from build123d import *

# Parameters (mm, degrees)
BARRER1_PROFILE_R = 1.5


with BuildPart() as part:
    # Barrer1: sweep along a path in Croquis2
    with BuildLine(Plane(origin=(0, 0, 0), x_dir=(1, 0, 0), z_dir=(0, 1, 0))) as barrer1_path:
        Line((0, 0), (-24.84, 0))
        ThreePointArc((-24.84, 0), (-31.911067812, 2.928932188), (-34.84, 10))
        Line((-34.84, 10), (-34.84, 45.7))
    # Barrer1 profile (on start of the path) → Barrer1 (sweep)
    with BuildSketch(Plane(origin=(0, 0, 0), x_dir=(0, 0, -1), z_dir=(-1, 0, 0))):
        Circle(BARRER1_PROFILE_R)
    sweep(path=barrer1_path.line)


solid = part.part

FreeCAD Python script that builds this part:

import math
import FreeCAD as App
import Part
import Sketcher

doc = App.newDocument("Part")
body = doc.addObject("PartDesign::Body", "Body")

sketch1 = body.newObject("Sketcher::SketchObject", "Sketch")
sketch1.AttachmentSupport = (doc.getObject("YZ_Plane"), [""])
sketch1.MapMode = "FlatFace"
sketch1.addGeometry(Part.Circle(App.Vector(0, 0, 0), App.Vector(0, 0, 1), 1.5), False)
sketch1.addConstraint([
    Sketcher.Constraint("Coincident", 0, 3, -1, 1),
    Sketcher.Constraint("Diameter", 0, 3.0),
])

sketch2 = body.newObject("Sketcher::SketchObject", "Sketch001")
sketch2.AttachmentSupport = (doc.getObject("XZ_Plane"), [""])
sketch2.MapMode = "FlatFace"
sketch2.addGeometry([
    Part.LineSegment(App.Vector(0, 0, 0), App.Vector(-25, 0, 0)),
    Part.ArcOfCircle(Part.Circle(App.Vector(-25, -10, 0), App.Vector(0, 0, 1), 10), math.radians(90), math.radians(180)),
    Part.LineSegment(App.Vector(-35, -10, 0), App.Vector(-35, -46, 0)),
], False)
sketch2.addConstraint([
    Sketcher.Constraint("Tangent", 0, 2, 1, 1),
    Sketcher.Constraint("Tangent", 1, 2, 2, 1),
    Sketcher.Constraint("Horizontal", 0),
    Sketcher.Constraint("Vertical", 2),
    Sketcher.Constraint("Coincident", 0, 1, -1, 1),
    Sketcher.Constraint("Radius", 1, 10.0),
    Sketcher.Constraint("DistanceY", 2, 2, 2, 1, 35.7),
    Sketcher.Constraint("DistanceX", 0, 2, 0, 1, 24.84),
])
doc.recompute()

additivepipe = body.newObject("PartDesign::AdditivePipe", "AdditivePipe")
additivepipe.Profile = sketch1
additivepipe.Spine = (sketch2, ["Edge1", "Edge2", "Edge3"])

doc.recompute()
